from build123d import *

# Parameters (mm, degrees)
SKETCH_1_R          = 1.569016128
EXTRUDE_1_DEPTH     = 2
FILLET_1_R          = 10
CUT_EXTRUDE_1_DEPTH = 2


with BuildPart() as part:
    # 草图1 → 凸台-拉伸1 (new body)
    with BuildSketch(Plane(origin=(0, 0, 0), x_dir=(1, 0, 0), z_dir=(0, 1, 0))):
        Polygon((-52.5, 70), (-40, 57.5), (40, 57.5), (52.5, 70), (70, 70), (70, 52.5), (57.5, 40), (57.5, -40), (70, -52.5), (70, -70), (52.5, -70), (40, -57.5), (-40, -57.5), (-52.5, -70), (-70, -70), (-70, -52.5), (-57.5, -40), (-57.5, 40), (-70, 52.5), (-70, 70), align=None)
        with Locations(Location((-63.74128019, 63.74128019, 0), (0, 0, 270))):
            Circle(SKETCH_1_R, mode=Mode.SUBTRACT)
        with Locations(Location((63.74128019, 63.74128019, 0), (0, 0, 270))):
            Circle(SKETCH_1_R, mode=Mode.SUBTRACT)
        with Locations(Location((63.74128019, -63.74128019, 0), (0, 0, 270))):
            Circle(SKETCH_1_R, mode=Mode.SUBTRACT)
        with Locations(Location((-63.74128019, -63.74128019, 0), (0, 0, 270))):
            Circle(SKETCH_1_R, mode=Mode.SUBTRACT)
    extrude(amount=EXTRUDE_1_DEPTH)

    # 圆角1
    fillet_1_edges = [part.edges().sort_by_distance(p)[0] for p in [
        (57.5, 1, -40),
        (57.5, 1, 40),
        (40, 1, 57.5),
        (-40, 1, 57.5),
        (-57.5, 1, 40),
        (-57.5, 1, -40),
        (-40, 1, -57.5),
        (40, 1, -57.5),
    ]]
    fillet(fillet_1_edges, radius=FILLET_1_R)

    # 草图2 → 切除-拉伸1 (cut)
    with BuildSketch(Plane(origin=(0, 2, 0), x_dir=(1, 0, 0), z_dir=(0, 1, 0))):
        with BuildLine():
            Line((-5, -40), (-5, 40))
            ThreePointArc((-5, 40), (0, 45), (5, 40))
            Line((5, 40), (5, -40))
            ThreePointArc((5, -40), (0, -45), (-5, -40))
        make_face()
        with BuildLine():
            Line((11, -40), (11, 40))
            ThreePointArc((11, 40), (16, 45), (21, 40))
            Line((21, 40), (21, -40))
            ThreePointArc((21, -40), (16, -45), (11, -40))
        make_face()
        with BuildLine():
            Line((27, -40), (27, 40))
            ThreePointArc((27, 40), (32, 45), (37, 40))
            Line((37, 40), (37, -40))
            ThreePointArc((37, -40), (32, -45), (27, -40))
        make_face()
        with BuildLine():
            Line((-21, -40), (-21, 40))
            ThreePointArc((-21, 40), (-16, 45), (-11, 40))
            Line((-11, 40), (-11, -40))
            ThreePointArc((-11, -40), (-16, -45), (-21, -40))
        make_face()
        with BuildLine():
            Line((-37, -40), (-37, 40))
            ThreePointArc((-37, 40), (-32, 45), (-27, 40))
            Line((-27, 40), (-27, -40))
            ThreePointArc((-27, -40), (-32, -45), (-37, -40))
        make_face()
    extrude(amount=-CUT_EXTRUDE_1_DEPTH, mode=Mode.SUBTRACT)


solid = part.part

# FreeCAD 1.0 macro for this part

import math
import FreeCAD as App
import Part
import Sketcher
from FreeCAD import Vector
Q = App.Units.Quantity


def edges_at(feature, points):
    """Names of the edges that pass closest to the given points."""
    edges = feature.Shape.Edges
    near = lambda p: min(range(len(edges)), key=lambda i: edges[i].distToShape(Part.Vertex(*p))[0])
    return sorted({f"Edge{near(p) + 1}" for p in points})


def add_polygon(sketch, points):
    """Adds a closed chain of lines whose ends are joined by coincident constraints."""
    first, n = sketch.GeometryCount, len(points)
    for a, b in zip(points, points[1:] + points[:1]):
        sketch.addGeometry(Part.LineSegment(App.Vector(*a, 0), App.Vector(*b, 0)), False)
    for i in range(n):
        sketch.addConstraint(Sketcher.Constraint("Coincident", first + i, 2, first + (i + 1) % n, 1))

doc = App.newDocument("Part")
body = doc.addObject("PartDesign::Body", "Body")

# Sketch on XZ plane
sketch1 = doc.addObject("Sketcher::SketchObject", "Sketch")
body.addObject(sketch1)
sketch1.AttachmentSupport = (doc.XZ_Plane, [""])
sketch1.MapMode = "FlatFace"
add_polygon(sketch1, [(-40, -57.5), (-52.5, -70), (-70, -70), (-70, -52.5), (-57.5, -40), (-57.5, 40), (-70, 52.5), (-70, 70), (-52.5, 70), (-40, 57.5), (40, 57.5), (52.5, 70), (70, 70), (70, 52.5), (57.5, 40), (57.5, -40), (70, -52.5), (70, -70), (52.5, -70), (40, -57.5)])  # lines 0-19
sketch1.addGeometry(Part.Circle(Vector(63.74128, 63.74128, 0), Vector(0, 0, 1), 1.569016), False)  # 20
sketch1.addGeometry(Part.Circle(Vector(-63.74128, 63.74128, 0), Vector(0, 0, 1), 1.569016), False)  # 21
sketch1.addGeometry(Part.Circle(Vector(63.74128, -63.74128, 0), Vector(0, 0, 1), 1.569016), False)  # 22
sketch1.addGeometry(Part.Circle(Vector(-63.74128, -63.74128, 0), Vector(0, 0, 1), 1.569016), False)  # 23
sketch1.addConstraint([
    Sketcher.Constraint("Horizontal", 1),
    Sketcher.Constraint("Vertical", 2),
    Sketcher.Constraint("Vertical", 4),
    Sketcher.Constraint("Vertical", 6),
    Sketcher.Constraint("Horizontal", 7),
    Sketcher.Constraint("Horizontal", 9),
    Sketcher.Constraint("Horizontal", 11),
    Sketcher.Constraint("Vertical", 12),
    Sketcher.Constraint("Vertical", 14),
    Sketcher.Constraint("Vertical", 16),
    Sketcher.Constraint("Horizontal", 17),
    Sketcher.Constraint("Horizontal", 19),
    Sketcher.Constraint("Equal", 20, 21),
    Sketcher.Constraint("Equal", 21, 22),
    Sketcher.Constraint("Equal", 22, 23),
    Sketcher.Constraint("Symmetric", 21, 3, 22, 3, -1, 1),
    Sketcher.Constraint("Symmetric", 20, 3, 23, 3, -1, 1),
    Sketcher.Constraint("Symmetric", 0, 2, 10, 2, -1, 1),
    Sketcher.Constraint("Symmetric", 2, 2, 12, 2, -1, 1),
    Sketcher.Constraint("Symmetric", 3, 2, 13, 2, -1, 1),
    Sketcher.Constraint("Symmetric", 5, 2, 15, 2, -1, 1),
    Sketcher.Constraint("Symmetric", 7, 2, 17, 2, -1, 1),
    Sketcher.Constraint("Symmetric", 8, 2, 18, 2, -1, 1),
    Sketcher.Constraint("Symmetric", 20, 3, 21, 3, -2),
    Sketcher.Constraint("Symmetric", 7, 2, 10, 2, -2),
    Sketcher.Constraint("Symmetric", 5, 2, 12, 2, -2),
    Sketcher.Constraint("Parallel", 0, 3),
    Sketcher.Constraint("Perpendicular", 3, 5),
    Sketcher.Constraint("Parallel", 5, 8),
    Sketcher.Constraint("Perpendicular", 8, 10),
    Sketcher.Constraint("Perpendicular", 13, 15),
    Sketcher.Constraint("Horizontal", 4, 2, 13, 2),
    Sketcher.Constraint("Equal", 17, 2),
    Sketcher.Constraint("Equal", 19, 4),
    Sketcher.Constraint("Equal", 0, 3),
    Sketcher.Constraint("DistanceX", 9, 1, 9, 2, Q("80 mm")),
    Sketcher.Constraint("DistanceX", 1, 2, 1, 1, Q("17.5 mm")),
    Sketcher.Constraint("DistanceY", 0, 2, -1, 1, Q("70 mm")),
    Sketcher.Constraint("Diameter", 20, Q("3.138032 mm")),
    Sketcher.Constraint("DistanceX", -1, 1, 20, 3, Q("63.74128 mm")),
    Sketcher.Constraint("DistanceY", -1, 1, 20, 3, Q("63.74128 mm")),
])
pad1 = doc.addObject("PartDesign::Pad", "Pad")
body.addObject(pad1)
pad1.Profile = sketch1
pad1.Length = 2
pad1.Reversed = True
doc.recompute()

fillet = doc.addObject("PartDesign::Fillet", "Fillet")
body.addObject(fillet)
fillet.Base = (pad1, edges_at(pad1, [
    (57.5, 1, -40),
    (57.5, 1, 40),
    (40, 1, 57.5),
    (-40, 1, 57.5),
    (-57.5, 1, 40),
    (-57.5, 1, -40),
    (-40, 1, -57.5),
    (40, 1, -57.5),
]))
fillet.Radius = 10

# Sketch on XZ plane
sketch2 = doc.addObject("Sketcher::SketchObject", "Sketch001")
body.addObject(sketch2)
sketch2.AttachmentSupport = (doc.XZ_Plane, [""])
sketch2.MapMode = "FlatFace"
sketch2.AttachmentOffset = App.Placement(Vector(0, 0, -2), App.Rotation())
sketch2.addGeometry([
    Part.LineSegment(Vector(-5, -40, 0), Vector(-5, 40, 0)),  # 0
    Part.ArcOfCircle(Part.Circle(Vector(0, 40, 0), Vector(0, 0, 1), 5), math.radians(0), math.radians(180)),  # 1
    Part.LineSegment(Vector(5, 40, 0), Vector(5, -40, 0)),  # 2
    Part.ArcOfCircle(Part.Circle(Vector(0, -40, 0), Vector(0, 0, 1), 5), math.radians(180), math.radians(360)),  # 3
    Part.LineSegment(Vector(11, -40, 0), Vector(11, 40, 0)),  # 4
    Part.ArcOfCircle(Part.Circle(Vector(16, 40, 0), Vector(0, 0, 1), 5), math.radians(0), math.radians(180)),  # 5
    Part.LineSegment(Vector(21, 40, 0), Vector(21, -40, 0)),  # 6
    Part.ArcOfCircle(Part.Circle(Vector(16, -40, 0), Vector(0, 0, 1), 5), math.radians(180), math.radians(360)),  # 7
    Part.LineSegment(Vector(27, -40, 0), Vector(27, 40, 0)),  # 8
    Part.ArcOfCircle(Part.Circle(Vector(32, 40, 0), Vector(0, 0, 1), 5), math.radians(0), math.radians(180)),  # 9
    Part.LineSegment(Vector(37, 40, 0), Vector(37, -40, 0)),  # 10
    Part.ArcOfCircle(Part.Circle(Vector(32, -40, 0), Vector(0, 0, 1), 5), math.radians(180), math.radians(360)),  # 11
    Part.LineSegment(Vector(-21, -40, 0), Vector(-21, 40, 0)),  # 12
    Part.ArcOfCircle(Part.Circle(Vector(-16, 40, 0), Vector(0, 0, 1), 5), math.radians(0), math.radians(180)),  # 13
    Part.LineSegment(Vector(-11, 40, 0), Vector(-11, -40, 0)),  # 14
    Part.ArcOfCircle(Part.Circle(Vector(-16, -40, 0), Vector(0, 0, 1), 5), math.radians(180), math.radians(360)),  # 15
    Part.LineSegment(Vector(-37, -40, 0), Vector(-37, 40, 0)),  # 16
    Part.ArcOfCircle(Part.Circle(Vector(-32, 40, 0), Vector(0, 0, 1), 5), math.radians(0), math.radians(180)),  # 17
    Part.LineSegment(Vector(-27, 40, 0), Vector(-27, -40, 0)),  # 18
    Part.ArcOfCircle(Part.Circle(Vector(-32, -40, 0), Vector(0, 0, 1), 5), math.radians(180), math.radians(360)),  # 19
], False)
sketch2.addConstraint([
    Sketcher.Constraint("Tangent", 0, 2, 1, 2),
    Sketcher.Constraint("Tangent", 1, 1, 2, 1),
    Sketcher.Constraint("Tangent", 2, 2, 3, 2),
    Sketcher.Constraint("Tangent", 3, 1, 0, 1),
    Sketcher.Constraint("Tangent", 4, 2, 5, 2),
    Sketcher.Constraint("Tangent", 5, 1, 6, 1),
    Sketcher.Constraint("Tangent", 6, 2, 7, 2),
    Sketcher.Constraint("Tangent", 7, 1, 4, 1),
    Sketcher.Constraint("Tangent", 8, 2, 9, 2),
    Sketcher.Constraint("Tangent", 9, 1, 10, 1),
    Sketcher.Constraint("Tangent", 10, 2, 11, 2),
    Sketcher.Constraint("Tangent", 11, 1, 8, 1),
    Sketcher.Constraint("Tangent", 12, 2, 13, 2),
    Sketcher.Constraint("Tangent", 13, 1, 14, 1),
    Sketcher.Constraint("Tangent", 14, 2, 15, 2),
    Sketcher.Constraint("Tangent", 15, 1, 12, 1),
    Sketcher.Constraint("Tangent", 16, 2, 17, 2),
    Sketcher.Constraint("Tangent", 17, 1, 18, 1),
    Sketcher.Constraint("Tangent", 18, 2, 19, 2),
    Sketcher.Constraint("Tangent", 19, 1, 16, 1),
    Sketcher.Constraint("Vertical", 0),
    Sketcher.Constraint("Vertical", 2),
    Sketcher.Constraint("Vertical", 4),
    Sketcher.Constraint("Vertical", 6),
    Sketcher.Constraint("Vertical", 8),
    Sketcher.Constraint("Vertical", 10),
    Sketcher.Constraint("Vertical", 12),
    Sketcher.Constraint("Vertical", 14),
    Sketcher.Constraint("Vertical", 16),
    Sketcher.Constraint("Vertical", 18),
    Sketcher.Constraint("Equal", 3, 5),
    Sketcher.Constraint("Equal", 7, 9),
    Sketcher.Constraint("Equal", 11, 13),
    Sketcher.Constraint("Equal", 15, 17),
    Sketcher.Constraint("Symmetric", 1, 3, 3, 3, -1, 1),
    Sketcher.Constraint("Symmetric", 7, 3, 13, 3, -1, 1),
    Sketcher.Constraint("Symmetric", 11, 3, 17, 3, -1, 1),
    Sketcher.Constraint("Horizontal", 1, 3, 5, 3),
    Sketcher.Constraint("Horizontal", 3, 3, 7, 3),
    Sketcher.Constraint("Horizontal", 5, 3, 9, 3),
    Sketcher.Constraint("Horizontal", 7, 3, 11, 3),
    Sketcher.Constraint("Horizontal", 11, 3, 15, 3),
    Sketcher.Constraint("Horizontal", 15, 3, 19, 3),
    Sketcher.Constraint("Radius", 1, Q("5 mm")),
    Sketcher.Constraint("DistanceY", 0, 1, 0, 2, Q("80 mm")),
    Sketcher.Constraint("DistanceX", -1, 1, 5, 3, Q("16 mm")),
    Sketcher.Constraint("DistanceX", -1, 1, 9, 3, Q("32 mm")),
])
pocket1 = doc.addObject("PartDesign::Pocket", "Pocket")
body.addObject(pocket1)
pocket1.Profile = sketch2
pocket1.Length = 2
pocket1.Reversed = True

doc.recompute()
